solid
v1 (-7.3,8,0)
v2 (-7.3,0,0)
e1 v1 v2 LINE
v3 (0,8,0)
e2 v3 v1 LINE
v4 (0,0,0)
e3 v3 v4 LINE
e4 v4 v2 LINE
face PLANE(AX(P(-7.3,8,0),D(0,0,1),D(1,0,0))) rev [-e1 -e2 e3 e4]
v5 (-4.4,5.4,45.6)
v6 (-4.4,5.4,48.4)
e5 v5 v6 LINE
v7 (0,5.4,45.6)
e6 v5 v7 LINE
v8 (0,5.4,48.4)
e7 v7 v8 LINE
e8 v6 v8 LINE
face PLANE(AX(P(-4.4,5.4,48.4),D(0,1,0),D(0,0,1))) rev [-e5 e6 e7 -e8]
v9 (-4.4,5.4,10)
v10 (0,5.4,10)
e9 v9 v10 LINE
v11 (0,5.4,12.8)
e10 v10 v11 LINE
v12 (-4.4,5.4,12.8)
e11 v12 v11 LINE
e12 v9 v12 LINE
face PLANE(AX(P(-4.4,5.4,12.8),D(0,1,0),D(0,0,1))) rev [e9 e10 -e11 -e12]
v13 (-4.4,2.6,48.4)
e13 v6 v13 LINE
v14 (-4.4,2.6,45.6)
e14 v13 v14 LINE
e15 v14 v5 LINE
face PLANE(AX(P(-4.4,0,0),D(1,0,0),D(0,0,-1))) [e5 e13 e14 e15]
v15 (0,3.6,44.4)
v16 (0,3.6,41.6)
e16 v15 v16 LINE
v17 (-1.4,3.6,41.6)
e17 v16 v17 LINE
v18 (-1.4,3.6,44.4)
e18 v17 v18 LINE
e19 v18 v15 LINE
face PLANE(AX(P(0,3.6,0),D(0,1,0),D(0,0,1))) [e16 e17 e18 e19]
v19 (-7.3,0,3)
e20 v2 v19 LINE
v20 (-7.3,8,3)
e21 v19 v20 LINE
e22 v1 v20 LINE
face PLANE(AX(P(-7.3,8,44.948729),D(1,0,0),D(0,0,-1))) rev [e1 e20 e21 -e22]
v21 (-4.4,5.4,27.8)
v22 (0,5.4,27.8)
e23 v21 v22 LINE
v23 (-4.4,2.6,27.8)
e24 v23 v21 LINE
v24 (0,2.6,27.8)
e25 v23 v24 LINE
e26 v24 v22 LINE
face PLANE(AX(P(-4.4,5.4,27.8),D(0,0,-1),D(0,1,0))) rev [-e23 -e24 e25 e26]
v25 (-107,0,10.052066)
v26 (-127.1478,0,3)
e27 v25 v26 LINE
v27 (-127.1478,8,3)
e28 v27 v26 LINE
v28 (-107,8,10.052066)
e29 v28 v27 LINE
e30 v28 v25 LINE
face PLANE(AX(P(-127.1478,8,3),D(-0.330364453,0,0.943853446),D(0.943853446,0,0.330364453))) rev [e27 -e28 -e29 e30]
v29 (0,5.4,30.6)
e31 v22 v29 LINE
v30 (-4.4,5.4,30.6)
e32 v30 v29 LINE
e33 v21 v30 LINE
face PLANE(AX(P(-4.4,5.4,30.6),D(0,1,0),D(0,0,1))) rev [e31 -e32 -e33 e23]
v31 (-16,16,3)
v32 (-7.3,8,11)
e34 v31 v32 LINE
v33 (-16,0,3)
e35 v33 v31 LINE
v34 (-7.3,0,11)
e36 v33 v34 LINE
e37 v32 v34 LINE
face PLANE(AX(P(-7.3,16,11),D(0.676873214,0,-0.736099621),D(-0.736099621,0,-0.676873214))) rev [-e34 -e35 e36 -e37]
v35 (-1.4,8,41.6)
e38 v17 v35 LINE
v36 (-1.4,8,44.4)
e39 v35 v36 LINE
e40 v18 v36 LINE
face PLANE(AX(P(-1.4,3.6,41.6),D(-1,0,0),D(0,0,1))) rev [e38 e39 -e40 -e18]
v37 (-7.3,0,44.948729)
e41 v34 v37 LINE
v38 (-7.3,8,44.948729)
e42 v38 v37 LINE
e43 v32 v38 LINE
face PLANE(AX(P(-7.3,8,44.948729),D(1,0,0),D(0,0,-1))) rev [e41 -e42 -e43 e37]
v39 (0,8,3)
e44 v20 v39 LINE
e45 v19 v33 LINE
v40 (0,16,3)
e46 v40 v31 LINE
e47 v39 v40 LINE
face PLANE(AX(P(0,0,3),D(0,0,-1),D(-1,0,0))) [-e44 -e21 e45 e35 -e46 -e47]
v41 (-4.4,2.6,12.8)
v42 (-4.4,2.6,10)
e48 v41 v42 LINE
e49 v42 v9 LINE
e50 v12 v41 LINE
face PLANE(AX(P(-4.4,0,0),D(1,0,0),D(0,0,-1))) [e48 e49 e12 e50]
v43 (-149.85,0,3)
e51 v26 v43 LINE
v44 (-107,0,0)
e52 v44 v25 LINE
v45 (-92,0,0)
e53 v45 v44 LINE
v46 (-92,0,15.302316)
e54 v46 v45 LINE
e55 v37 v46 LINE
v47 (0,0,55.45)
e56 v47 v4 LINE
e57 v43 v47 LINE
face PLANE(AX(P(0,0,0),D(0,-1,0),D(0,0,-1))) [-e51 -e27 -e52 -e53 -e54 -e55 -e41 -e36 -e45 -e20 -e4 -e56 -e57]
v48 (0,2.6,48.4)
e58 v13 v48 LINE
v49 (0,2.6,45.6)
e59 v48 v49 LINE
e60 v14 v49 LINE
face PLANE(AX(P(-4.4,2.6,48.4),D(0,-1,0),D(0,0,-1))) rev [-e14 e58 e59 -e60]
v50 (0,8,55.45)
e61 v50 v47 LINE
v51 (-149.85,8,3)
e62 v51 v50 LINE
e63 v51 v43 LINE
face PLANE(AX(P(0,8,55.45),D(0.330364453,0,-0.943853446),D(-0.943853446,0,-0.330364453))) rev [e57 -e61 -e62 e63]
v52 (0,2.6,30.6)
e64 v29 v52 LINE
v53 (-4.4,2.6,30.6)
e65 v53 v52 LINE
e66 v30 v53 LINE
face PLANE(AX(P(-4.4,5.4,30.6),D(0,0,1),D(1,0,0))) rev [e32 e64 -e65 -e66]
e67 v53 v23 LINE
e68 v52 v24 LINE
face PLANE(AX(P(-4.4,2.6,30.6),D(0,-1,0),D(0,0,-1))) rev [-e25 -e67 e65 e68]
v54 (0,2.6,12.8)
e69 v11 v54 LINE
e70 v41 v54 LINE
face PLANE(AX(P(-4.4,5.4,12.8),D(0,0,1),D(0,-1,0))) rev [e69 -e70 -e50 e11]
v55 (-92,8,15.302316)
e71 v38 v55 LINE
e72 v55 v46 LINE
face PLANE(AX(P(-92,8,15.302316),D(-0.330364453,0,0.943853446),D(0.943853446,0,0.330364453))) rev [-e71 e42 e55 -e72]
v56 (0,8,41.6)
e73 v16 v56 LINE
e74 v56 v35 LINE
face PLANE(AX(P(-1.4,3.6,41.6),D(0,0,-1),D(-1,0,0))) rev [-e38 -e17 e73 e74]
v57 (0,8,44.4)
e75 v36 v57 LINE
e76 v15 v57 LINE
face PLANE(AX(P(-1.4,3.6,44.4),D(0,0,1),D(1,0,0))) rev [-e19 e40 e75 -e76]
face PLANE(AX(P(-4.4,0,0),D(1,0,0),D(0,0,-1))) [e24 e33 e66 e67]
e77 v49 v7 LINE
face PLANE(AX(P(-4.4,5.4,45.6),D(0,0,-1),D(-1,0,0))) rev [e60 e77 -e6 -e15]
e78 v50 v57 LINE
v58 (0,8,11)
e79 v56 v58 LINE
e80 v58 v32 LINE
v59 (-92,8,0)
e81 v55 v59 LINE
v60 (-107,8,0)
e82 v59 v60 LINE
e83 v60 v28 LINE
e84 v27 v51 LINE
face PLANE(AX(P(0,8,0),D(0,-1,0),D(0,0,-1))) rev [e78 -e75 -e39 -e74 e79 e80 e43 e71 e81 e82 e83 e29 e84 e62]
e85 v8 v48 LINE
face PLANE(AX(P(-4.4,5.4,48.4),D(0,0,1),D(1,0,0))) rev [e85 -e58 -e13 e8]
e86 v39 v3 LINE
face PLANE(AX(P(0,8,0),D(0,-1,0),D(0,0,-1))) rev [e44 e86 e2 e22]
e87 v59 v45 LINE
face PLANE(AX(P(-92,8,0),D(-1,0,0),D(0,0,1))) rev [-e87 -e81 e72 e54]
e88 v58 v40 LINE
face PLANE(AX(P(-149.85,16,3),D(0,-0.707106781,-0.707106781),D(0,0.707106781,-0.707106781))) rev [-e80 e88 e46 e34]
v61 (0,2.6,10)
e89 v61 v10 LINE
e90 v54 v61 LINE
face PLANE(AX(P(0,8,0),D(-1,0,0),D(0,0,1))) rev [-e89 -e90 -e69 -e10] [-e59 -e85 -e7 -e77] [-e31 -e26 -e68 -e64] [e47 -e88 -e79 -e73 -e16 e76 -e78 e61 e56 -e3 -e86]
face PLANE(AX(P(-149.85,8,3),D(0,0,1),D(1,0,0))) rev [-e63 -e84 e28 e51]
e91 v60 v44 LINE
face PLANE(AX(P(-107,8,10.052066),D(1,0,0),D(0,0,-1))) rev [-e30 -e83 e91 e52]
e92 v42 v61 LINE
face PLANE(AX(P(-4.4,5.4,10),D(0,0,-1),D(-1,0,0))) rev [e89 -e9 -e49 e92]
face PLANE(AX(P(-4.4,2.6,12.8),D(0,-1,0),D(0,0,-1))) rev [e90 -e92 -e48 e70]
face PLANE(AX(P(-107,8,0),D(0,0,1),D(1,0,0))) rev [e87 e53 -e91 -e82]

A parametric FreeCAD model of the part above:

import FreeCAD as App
import Part
import Sketcher

doc = App.newDocument("Part")
params = doc.addObject("Spreadsheet::Sheet", "Params")
for row, (alias, value) in enumerate([
    ("sketch1_width", "15 mm"),
    ("sketch1_width2", "7.3 mm"),
    ("sketch1_height", "55.45 mm"),
    ("pad1_length", "8 mm"),
    ("sketch2_width", "1.4 mm"),
    ("sketch2_height", "2.8 mm"),
    ("pocket1_length", "4.4 mm"),
    ("sketch3_width", "16 mm"),
    ("sketch3_height", "8 mm"),
    ("pad2_length", "16 mm"),
    ("sketch4_width", "8 mm"),
    ("sketch5_height", "8 mm"),
    ("sketch5_width", "8.7 mm"),
    ("sketch6_width", "2.8 mm"),
    ("pocket4_length", "4.4 mm"),
], start=1):
    params.set(f"A{row}", alias)
    params.set(f"B{row}", "=" + value)
    params.setAlias(f"B{row}", alias)

body = doc.addObject("PartDesign::Body", "Body")

sketch1 = body.newObject("Sketcher::SketchObject", "Sketch")
sketch1.AttachmentSupport = (doc.getObject("XZ_Plane"), [""])
sketch1.MapMode = "FlatFace"
sketch1.addGeometry([
    Part.LineSegment(App.Vector(0, 55, 0), App.Vector(0, 0, 0)),
    Part.LineSegment(App.Vector(0, 0, 0), App.Vector(-7, 0, 0)),
    Part.LineSegment(App.Vector(-7, 0, 0), App.Vector(-7, 45, 0)),
    Part.LineSegment(App.Vector(-7, 45, 0), App.Vector(-92, 15, 0)),
    Part.LineSegment(App.Vector(-92, 15, 0), App.Vector(-92, 0, 0)),
    Part.LineSegment(App.Vector(-92, 0, 0), App.Vector(-107, 0, 0)),
    Part.LineSegment(App.Vector(-107, 0, 0), App.Vector(-107, 10, 0)),
    Part.LineSegment(App.Vector(-107, 10, 0), App.Vector(-127, 3, 0)),
    Part.LineSegment(App.Vector(-127, 3, 0), App.Vector(-150, 3, 0)),
    Part.LineSegment(App.Vector(-150, 3, 0), App.Vector(0, 55, 0)),
], False)
sketch1.addConstraint([
    Sketcher.Constraint("Coincident", 0, 2, 1, 1),
    Sketcher.Constraint("Coincident", 1, 2, 2, 1),
    Sketcher.Constraint("Coincident", 2, 2, 3, 1),
    Sketcher.Constraint("Coincident", 3, 2, 4, 1),
    Sketcher.Constraint("Coincident", 4, 2, 5, 1),
    Sketcher.Constraint("Coincident", 5, 2, 6, 1),
    Sketcher.Constraint("Coincident", 6, 2, 7, 1),
    Sketcher.Constraint("Coincident", 7, 2, 8, 1),
    Sketcher.Constraint("Coincident", 8, 2, 9, 1),
    Sketcher.Constraint("Coincident", 9, 2, 0, 1),
    Sketcher.Constraint("Vertical", 0),
    Sketcher.Constraint("Horizontal", 1),
    Sketcher.Constraint("Vertical", 2),
    Sketcher.Constraint("Vertical", 4),
    Sketcher.Constraint("Horizontal", 5),
    Sketcher.Constraint("Vertical", 6),
    Sketcher.Constraint("Horizontal", 8),
    Sketcher.Constraint("Coincident", 0, 2, -1, 1),
    Sketcher.Constraint("PointOnObject", 4, 2, -1),
    Sketcher.Constraint("Parallel", 3, 7),
    Sketcher.Constraint("Parallel", 7, 9),
    Sketcher.Constraint("DistanceX", 5, 2, 5, 1, 15.0),
    Sketcher.Constraint("DistanceX", 1, 2, 1, 1, 7.3),
    Sketcher.Constraint("DistanceX", 3, 2, -1, 1, 92.0),
    Sketcher.Constraint("DistanceY", -1, 1, 7, 2, 3.0),
    Sketcher.Constraint("DistanceY", 0, 2, 0, 1, 55.45),
    Sketcher.Constraint("DistanceX", 8, 2, -1, 1, 149.85),
    Sketcher.Constraint("DistanceX", 8, 2, 8, 1, 22.7022),
    Sketcher.Constraint("DistanceY", 2, 1, 2, 2, 44.948729),
])
sketch1.setExpression("Constraints[21]", "Params.sketch1_width")
sketch1.setExpression("Constraints[22]", "Params.sketch1_width2")
sketch1.setExpression("Constraints[25]", "Params.sketch1_height")
pad1 = body.newObject("PartDesign::Pad", "Pad")
pad1.Profile = sketch1
pad1.setExpression("Length", "Params.pad1_length")
pad1.Reversed = True

sketch2 = body.newObject("Sketcher::SketchObject", "Sketch001")
sketch2.AttachmentSupport = (doc.getObject("XZ_Plane"), [""])
sketch2.MapMode = "FlatFace"
sketch2.AttachmentOffset = App.Placement(App.Vector(0, 0, -8), App.Rotation())
sketch2.addGeometry([
    Part.LineSegment(App.Vector(-1.4, 41.6, 0), App.Vector(-1.4, 44.4, 0)),
    Part.LineSegment(App.Vector(-1.4, 44.4, 0), App.Vector(0, 44.4, 0)),
    Part.LineSegment(App.Vector(0, 44.4, 0), App.Vector(0, 41.6, 0)),
    Part.LineSegment(App.Vector(0, 41.6, 0), App.Vector(-1.4, 41.6, 0)),
], False)
sketch2.addConstraint([
    Sketcher.Constraint("Coincident", 0, 2, 1, 1),
    Sketcher.Constraint("Coincident", 1, 2, 2, 1),
    Sketcher.Constraint("Coincident", 2, 2, 3, 1),
    Sketcher.Constraint("Coincident", 3, 2, 0, 1),
    Sketcher.Constraint("Vertical", 0),
    Sketcher.Constraint("Horizontal", 1),
    Sketcher.Constraint("Vertical", 2),
    Sketcher.Constraint("Horizontal", 3),
    Sketcher.Constraint("PointOnObject", 1, 2, -2),
    Sketcher.Constraint("DistanceX", 1, 1, 1, 2, 1.4),
    Sketcher.Constraint("DistanceY", 0, 1, 0, 2, 2.8),
    Sketcher.Constraint("DistanceY", -1, 1, 0, 2, 44.4),
])
sketch2.setExpression("Constraints[9]", "Params.sketch2_width")
sketch2.setExpression("Constraints[10]", "Params.sketch2_height")
pocket1 = body.newObject("PartDesign::Pocket", "Pocket")
pocket1.Profile = sketch2
pocket1.setExpression("Length", "Params.pocket1_length")
pocket1.Reversed = True

sketch3 = body.newObject("Sketcher::SketchObject", "Sketch002")
sketch3.AttachmentSupport = (doc.getObject("XZ_Plane"), [""])
sketch3.MapMode = "FlatFace"
sketch3.AttachmentOffset = App.Placement(App.Vector(0, 0, -16), App.Rotation())
sketch3.addGeometry([
    Part.LineSegment(App.Vector(-16, 3, 0), App.Vector(-16, 11, 0)),
    Part.LineSegment(App.Vector(-16, 11, 0), App.Vector(0, 11, 0)),
    Part.LineSegment(App.Vector(0, 11, 0), App.Vector(0, 3, 0)),
    Part.LineSegment(App.Vector(0, 3, 0), App.Vector(-16, 3, 0)),
], False)
sketch3.addConstraint([
    Sketcher.Constraint("Coincident", 0, 2, 1, 1),
    Sketcher.Constraint("Coincident", 1, 2, 2, 1),
    Sketcher.Constraint("Coincident", 2, 2, 3, 1),
    Sketcher.Constraint("Coincident", 3, 2, 0, 1),
    Sketcher.Constraint("Vertical", 0),
    Sketcher.Constraint("Horizontal", 1),
    Sketcher.Constraint("Vertical", 2),
    Sketcher.Constraint("Horizontal", 3),
    Sketcher.Constraint("PointOnObject", 1, 2, -2),
    Sketcher.Constraint("DistanceX", 1, 1, 1, 2, 16.0),
    Sketcher.Constraint("DistanceY", 0, 1, 0, 2, 8.0),
    Sketcher.Constraint("DistanceY", -1, 1, 0, 2, 11.0),
])
sketch3.setExpression("Constraints[9]", "Params.sketch3_width")
sketch3.setExpression("Constraints[10]", "Params.sketch3_height")
pad2 = body.newObject("PartDesign::Pad", "Pad001")
pad2.Profile = sketch3
pad2.setExpression("Length", "Params.pad2_length")

sketch4 = body.newObject("Sketcher::SketchObject", "Sketch003")
sketch4.AttachmentSupport = (doc.getObject("YZ_Plane"), [""])
sketch4.MapMode = "FlatFace"
sketch4.addGeometry([
    Part.LineSegment(App.Vector(16, 11, 0), App.Vector(8, 11, 0)),
    Part.LineSegment(App.Vector(8, 11, 0), App.Vector(16, 3, 0)),
    Part.LineSegment(App.Vector(16, 3, 0), App.Vector(16, 11, 0)),
], False)
sketch4.addConstraint([
    Sketcher.Constraint("Coincident", 0, 2, 1, 1),
    Sketcher.Constraint("Coincident", 1, 2, 2, 1),
    Sketcher.Constraint("Coincident", 2, 2, 0, 1),
    Sketcher.Constraint("Horizontal", 0),
    Sketcher.Constraint("Vertical", 2),
    Sketcher.Constraint("Equal", 0, 2),
    Sketcher.Constraint("DistanceX", 0, 2, 0, 1, 8.0),
    Sketcher.Constraint("DistanceX", -1, 1, 0, 2, 8.0),
    Sketcher.Constraint("DistanceY", -1, 1, 0, 2, 11.0),
])
sketch4.setExpression("Constraints[6]", "Params.sketch4_width")
pocket2 = body.newObject("PartDesign::Pocket", "Pocket001")
pocket2.Profile = sketch4
pocket2.Type = "ThroughAll"

sketch5 = body.newObject("Sketcher::SketchObject", "Sketch004")
sketch5.AttachmentSupport = (doc.getObject("XZ_Plane"), [""])
sketch5.MapMode = "FlatFace"
sketch5.addGeometry([
    Part.LineSegment(App.Vector(-16, 11, 0), App.Vector(-16, 3, 0)),
    Part.LineSegment(App.Vector(-16, 3, 0), App.Vector(-7, 11, 0)),
    Part.LineSegment(App.Vector(-7, 11, 0), App.Vector(-16, 11, 0)),
], False)
sketch5.addConstraint([
    Sketcher.Constraint("Coincident", 0, 2, 1, 1),
    Sketcher.Constraint("Coincident", 1, 2, 2, 1),
    Sketcher.Constraint("Coincident", 2, 2, 0, 1),
    Sketcher.Constraint("Vertical", 0),
    Sketcher.Constraint("Horizontal", 2),
    Sketcher.Constraint("DistanceY", 0, 2, 0, 1, 8.0),
    Sketcher.Constraint("DistanceX", 2, 2, 2, 1, 8.7),
    Sketcher.Constraint("DistanceX", 0, 2, -1, 1, 16.0),
    Sketcher.Constraint("DistanceY", -1, 1, 0, 2, 3.0),
])
sketch5.setExpression("Constraints[5]", "Params.sketch5_height")
sketch5.setExpression("Constraints[6]", "Params.sketch5_width")
pocket3 = body.newObject("PartDesign::Pocket", "Pocket002")
pocket3.Profile = sketch5
pocket3.Type = "ThroughAll"

sketch6 = body.newObject("Sketcher::SketchObject", "Sketch005")
sketch6.AttachmentSupport = (doc.getObject("YZ_Plane"), [""])
sketch6.MapMode = "FlatFace"
sketch6.addGeometry([
    Part.LineSegment(App.Vector(5.4, 48.4, 0), App.Vector(2.6, 48.4, 0)),
    Part.LineSegment(App.Vector(2.6, 48.4, 0), App.Vector(2.6, 45.6, 0)),
    Part.LineSegment(App.Vector(2.6, 45.6, 0), App.Vector(5.4, 45.6, 0)),
    Part.LineSegment(App.Vector(5.4, 45.6, 0), App.Vector(5.4, 48.4, 0)),
    Part.LineSegment(App.Vector(5.4, 30.6, 0), App.Vector(2.6, 30.6, 0)),
    Part.LineSegment(App.Vector(2.6, 30.6, 0), App.Vector(2.6, 27.8, 0)),
    Part.LineSegment(App.Vector(2.6, 27.8, 0), App.Vector(5.4, 27.8, 0)),
    Part.LineSegment(App.Vector(5.4, 27.8, 0), App.Vector(5.4, 30.6, 0)),
    Part.LineSegment(App.Vector(5.4, 12.8, 0), App.Vector(2.6, 12.8, 0)),
    Part.LineSegment(App.Vector(2.6, 12.8, 0), App.Vector(2.6, 10, 0)),
    Part.LineSegment(App.Vector(2.6, 10, 0), App.Vector(5.4, 10, 0)),
    Part.LineSegment(App.Vector(5.4, 10, 0), App.Vector(5.4, 12.8, 0)),
], False)
sketch6.addConstraint([
    Sketcher.Constraint("Coincident", 0, 2, 1, 1),
    Sketcher.Constraint("Coincident", 1, 2, 2, 1),
    Sketcher.Constraint("Coincident", 2, 2, 3, 1),
    Sketcher.Constraint("Coincident", 3, 2, 0, 1),
    Sketcher.Constraint("Coincident", 4, 2, 5, 1),
    Sketcher.Constraint("Coincident", 5, 2, 6, 1),
    Sketcher.Constraint("Coincident", 6, 2, 7, 1),
    Sketcher.Constraint("Coincident", 7, 2, 4, 1),
    Sketcher.Constraint("Coincident", 8, 2, 9, 1),
    Sketcher.Constraint("Coincident", 9, 2, 10, 1),
    Sketcher.Constraint("Coincident", 10, 2, 11, 1),
    Sketcher.Constraint("Coincident", 11, 2, 8, 1),
    Sketcher.Constraint("Horizontal", 0),
    Sketcher.Constraint("Vertical", 1),
    Sketcher.Constraint("Horizontal", 2),
    Sketcher.Constraint("Vertical", 3),
    Sketcher.Constraint("Horizontal", 4),
    Sketcher.Constraint("Vertical", 5),
    Sketcher.Constraint("Horizontal", 6),
    Sketcher.Constraint("Vertical", 7),
    Sketcher.Constraint("Horizontal", 8),
    Sketcher.Constraint("Vertical", 9),
    Sketcher.Constraint("Horizontal", 10),
    Sketcher.Constraint("Vertical", 11),
    Sketcher.Constraint("Vertical", 1, 2, 4, 2),
    Sketcher.Constraint("Vertical", 3, 2, 6, 2),
    Sketcher.Constraint("Vertical", 5, 2, 8, 2),
    Sketcher.Constraint("Vertical", 7, 2, 10, 2),
    Sketcher.Constraint("Equal", 10, 1),
    Sketcher.Constraint("Equal", 3, 5),
    Sketcher.Constraint("Equal", 7, 9),
    Sketcher.Constraint("DistanceX", 0, 2, 0, 1, 2.8),
    Sketcher.Constraint("DistanceY", -1, 1, 9, 2, 10.0),
    Sketcher.Constraint("DistanceY", 4, 2, 1, 2, 15.0),
    Sketcher.Constraint("DistanceY", 8, 2, 5, 2, 15.0),
    Sketcher.Constraint("DistanceX", -1, 1, 0, 2, 2.6),
])
sketch6.setExpression("Constraints[31]", "Params.sketch6_width")
pocket4 = body.newObject("PartDesign::Pocket", "Pocket003")
pocket4.Profile = sketch6
pocket4.setExpression("Length", "Params.pocket4_length")

doc.recompute()
